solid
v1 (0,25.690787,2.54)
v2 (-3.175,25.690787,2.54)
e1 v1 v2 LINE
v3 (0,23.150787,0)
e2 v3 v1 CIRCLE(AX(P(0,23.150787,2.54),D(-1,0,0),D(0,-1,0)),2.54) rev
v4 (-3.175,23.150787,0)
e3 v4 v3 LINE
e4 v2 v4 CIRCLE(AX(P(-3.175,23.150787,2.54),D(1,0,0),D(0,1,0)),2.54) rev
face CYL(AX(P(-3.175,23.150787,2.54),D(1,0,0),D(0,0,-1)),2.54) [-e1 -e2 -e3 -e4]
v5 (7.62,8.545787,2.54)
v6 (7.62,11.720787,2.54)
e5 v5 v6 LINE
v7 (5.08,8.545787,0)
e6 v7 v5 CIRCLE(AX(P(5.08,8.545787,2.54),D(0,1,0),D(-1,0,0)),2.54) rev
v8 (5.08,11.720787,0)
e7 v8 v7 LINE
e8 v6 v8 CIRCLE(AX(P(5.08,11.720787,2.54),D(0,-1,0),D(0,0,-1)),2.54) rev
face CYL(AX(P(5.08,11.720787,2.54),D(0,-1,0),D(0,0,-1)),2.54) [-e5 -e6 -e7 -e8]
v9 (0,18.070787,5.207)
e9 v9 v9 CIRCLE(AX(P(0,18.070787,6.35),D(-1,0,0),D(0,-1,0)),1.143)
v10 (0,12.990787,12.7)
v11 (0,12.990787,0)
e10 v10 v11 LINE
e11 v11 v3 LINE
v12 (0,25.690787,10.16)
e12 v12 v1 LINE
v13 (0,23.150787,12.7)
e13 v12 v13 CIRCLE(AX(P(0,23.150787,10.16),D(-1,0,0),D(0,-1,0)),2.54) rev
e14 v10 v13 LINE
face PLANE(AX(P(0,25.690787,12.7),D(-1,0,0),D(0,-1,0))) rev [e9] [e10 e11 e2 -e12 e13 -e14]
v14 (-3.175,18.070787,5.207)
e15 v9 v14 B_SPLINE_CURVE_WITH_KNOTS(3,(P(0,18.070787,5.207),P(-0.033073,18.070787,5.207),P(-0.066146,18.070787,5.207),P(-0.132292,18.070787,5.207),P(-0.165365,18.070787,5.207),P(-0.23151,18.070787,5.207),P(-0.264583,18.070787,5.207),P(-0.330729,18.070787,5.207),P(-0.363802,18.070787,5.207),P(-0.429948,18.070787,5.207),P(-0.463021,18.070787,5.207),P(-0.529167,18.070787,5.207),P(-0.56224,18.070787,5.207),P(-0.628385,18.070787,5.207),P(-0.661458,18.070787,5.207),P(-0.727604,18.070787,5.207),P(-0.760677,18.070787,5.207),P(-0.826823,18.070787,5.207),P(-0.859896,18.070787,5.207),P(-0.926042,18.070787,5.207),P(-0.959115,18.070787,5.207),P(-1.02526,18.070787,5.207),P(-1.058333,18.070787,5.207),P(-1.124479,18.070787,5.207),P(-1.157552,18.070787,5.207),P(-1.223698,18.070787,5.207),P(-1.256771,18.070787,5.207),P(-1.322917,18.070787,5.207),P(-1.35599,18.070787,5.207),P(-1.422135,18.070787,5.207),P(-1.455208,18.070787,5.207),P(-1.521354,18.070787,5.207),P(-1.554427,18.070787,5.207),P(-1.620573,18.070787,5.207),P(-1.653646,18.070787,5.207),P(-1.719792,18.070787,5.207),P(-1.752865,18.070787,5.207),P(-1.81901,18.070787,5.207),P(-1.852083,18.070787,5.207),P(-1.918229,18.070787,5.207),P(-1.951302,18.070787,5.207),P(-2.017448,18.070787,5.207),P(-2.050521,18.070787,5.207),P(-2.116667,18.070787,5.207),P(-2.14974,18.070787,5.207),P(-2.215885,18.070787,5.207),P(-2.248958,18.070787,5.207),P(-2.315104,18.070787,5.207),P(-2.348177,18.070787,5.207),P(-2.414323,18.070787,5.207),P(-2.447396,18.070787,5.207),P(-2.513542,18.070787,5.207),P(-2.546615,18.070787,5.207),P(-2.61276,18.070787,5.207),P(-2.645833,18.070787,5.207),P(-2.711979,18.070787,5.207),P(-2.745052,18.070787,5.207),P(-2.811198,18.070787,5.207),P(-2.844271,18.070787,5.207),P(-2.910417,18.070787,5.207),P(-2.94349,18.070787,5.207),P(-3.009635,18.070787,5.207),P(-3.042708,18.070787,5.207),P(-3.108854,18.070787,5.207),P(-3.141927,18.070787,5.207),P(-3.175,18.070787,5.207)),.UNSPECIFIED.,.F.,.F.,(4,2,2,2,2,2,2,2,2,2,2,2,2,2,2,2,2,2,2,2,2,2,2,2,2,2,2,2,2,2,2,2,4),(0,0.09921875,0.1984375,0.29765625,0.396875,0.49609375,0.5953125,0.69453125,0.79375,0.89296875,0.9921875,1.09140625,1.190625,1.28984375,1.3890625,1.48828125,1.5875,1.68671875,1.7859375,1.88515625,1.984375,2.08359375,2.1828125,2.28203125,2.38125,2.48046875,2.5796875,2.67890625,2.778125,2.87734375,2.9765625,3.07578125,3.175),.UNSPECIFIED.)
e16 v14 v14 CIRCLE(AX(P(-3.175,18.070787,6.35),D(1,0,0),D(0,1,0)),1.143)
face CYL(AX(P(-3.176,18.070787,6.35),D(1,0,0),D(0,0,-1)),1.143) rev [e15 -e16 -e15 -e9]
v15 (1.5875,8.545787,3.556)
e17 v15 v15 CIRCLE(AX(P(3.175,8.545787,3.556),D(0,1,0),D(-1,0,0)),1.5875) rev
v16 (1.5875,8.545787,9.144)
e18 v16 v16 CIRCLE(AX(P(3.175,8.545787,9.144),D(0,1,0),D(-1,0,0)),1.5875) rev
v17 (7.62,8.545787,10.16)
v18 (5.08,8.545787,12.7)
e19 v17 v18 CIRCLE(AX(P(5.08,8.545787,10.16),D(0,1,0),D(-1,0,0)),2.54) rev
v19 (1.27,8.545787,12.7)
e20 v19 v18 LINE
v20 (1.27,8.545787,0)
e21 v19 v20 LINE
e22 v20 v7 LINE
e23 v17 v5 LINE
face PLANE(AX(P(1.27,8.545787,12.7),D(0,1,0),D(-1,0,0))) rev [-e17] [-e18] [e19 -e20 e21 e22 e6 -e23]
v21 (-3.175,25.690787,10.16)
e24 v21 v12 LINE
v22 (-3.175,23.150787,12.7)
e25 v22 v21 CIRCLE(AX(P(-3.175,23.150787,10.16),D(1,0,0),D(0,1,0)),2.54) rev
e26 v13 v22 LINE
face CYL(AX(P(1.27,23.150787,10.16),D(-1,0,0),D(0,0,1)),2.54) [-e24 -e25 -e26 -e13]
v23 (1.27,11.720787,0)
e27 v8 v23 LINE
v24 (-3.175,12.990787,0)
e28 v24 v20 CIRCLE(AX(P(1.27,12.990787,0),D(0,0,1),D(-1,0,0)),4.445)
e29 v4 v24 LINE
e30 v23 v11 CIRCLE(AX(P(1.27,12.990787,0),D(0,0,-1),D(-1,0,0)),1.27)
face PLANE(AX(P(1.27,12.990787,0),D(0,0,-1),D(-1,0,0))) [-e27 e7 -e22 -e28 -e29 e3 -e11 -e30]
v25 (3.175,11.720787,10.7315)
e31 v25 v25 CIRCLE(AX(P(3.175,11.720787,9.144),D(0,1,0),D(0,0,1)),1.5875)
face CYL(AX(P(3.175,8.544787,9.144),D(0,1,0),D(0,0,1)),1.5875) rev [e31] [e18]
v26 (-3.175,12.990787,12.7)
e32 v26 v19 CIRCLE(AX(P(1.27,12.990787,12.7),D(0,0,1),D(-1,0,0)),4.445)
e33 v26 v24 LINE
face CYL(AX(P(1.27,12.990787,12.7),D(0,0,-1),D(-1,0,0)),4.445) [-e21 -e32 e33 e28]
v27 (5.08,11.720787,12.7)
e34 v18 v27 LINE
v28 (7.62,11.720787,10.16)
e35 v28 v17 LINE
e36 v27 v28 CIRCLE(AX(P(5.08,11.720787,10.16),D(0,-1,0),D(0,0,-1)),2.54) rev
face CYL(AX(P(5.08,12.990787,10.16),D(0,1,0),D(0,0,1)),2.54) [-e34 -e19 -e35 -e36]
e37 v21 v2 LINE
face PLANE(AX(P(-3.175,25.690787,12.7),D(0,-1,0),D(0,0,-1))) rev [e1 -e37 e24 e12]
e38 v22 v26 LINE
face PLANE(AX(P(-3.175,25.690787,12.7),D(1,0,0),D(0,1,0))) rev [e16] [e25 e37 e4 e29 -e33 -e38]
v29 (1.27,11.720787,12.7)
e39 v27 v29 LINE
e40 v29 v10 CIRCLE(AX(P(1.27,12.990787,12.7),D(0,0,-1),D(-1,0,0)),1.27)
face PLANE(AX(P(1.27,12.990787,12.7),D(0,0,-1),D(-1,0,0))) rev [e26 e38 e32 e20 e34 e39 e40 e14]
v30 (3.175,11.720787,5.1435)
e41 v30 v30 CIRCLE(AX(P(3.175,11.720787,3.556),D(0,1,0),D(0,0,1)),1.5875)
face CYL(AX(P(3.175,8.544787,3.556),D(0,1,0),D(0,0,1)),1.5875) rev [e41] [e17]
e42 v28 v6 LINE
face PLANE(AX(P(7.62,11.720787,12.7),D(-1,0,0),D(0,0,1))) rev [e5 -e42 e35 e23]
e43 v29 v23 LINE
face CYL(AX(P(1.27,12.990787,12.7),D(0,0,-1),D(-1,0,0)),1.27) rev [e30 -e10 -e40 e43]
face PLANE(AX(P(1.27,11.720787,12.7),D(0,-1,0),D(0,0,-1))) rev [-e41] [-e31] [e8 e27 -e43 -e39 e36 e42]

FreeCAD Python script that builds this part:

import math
import FreeCAD as App
import Part
import Sketcher
Q = App.Units.Quantity


def edges_at(feature, points):
    """Names of the edges that pass closest to the given points."""
    edges = feature.Shape.Edges
    near = lambda p: min(range(len(edges)), key=lambda i: edges[i].distToShape(Part.Vertex(*p))[0])
    return sorted({f"Edge{near(p) + 1}" for p in points})

doc = App.newDocument("Part")
body = doc.addObject("PartDesign::Body", "Body")

sketch1 = body.newObject("Sketcher::SketchObject", "Sketch")
sketch1.AttachmentSupport = (doc.getObject("XY_Plane"), [""])
sketch1.MapMode = "FlatFace"
sketch1.addGeometry([
    Part.LineSegment(App.Vector(0, 13, 0), App.Vector(0, 25.7, 0)),
    Part.LineSegment(App.Vector(0, 25.7, 0), App.Vector(-3.2, 25.7, 0)),
    Part.LineSegment(App.Vector(-3.2, 25.7, 0), App.Vector(-3.2, 13, 0)),
    Part.ArcOfCircle(Part.Circle(App.Vector(1.3, 13, 0), App.Vector(0, 0, 1), 4.4), math.radians(-180), math.radians(-90)),
    Part.LineSegment(App.Vector(1.3, 8.5, 0), App.Vector(7.6, 8.5, 0)),
    Part.LineSegment(App.Vector(7.6, 8.5, 0), App.Vector(7.6, 11.7, 0)),
    Part.LineSegment(App.Vector(7.6, 11.7, 0), App.Vector(1.3, 11.7, 0)),
    Part.ArcOfCircle(Part.Circle(App.Vector(1.3, 13, 0), App.Vector(0, 0, 1), 1.3), math.radians(180), math.radians(270)),
], False)
sketch1.addConstraint([
    Sketcher.Constraint("Coincident", 0, 2, 1, 1),
    Sketcher.Constraint("Coincident", 1, 2, 2, 1),
    Sketcher.Constraint("Tangent", 2, 2, 3, 1),
    Sketcher.Constraint("Tangent", 3, 2, 4, 1),
    Sketcher.Constraint("Coincident", 4, 2, 5, 1),
    Sketcher.Constraint("Coincident", 5, 2, 6, 1),
    Sketcher.Constraint("Tangent", 6, 2, 7, 2),
    Sketcher.Constraint("Tangent", 7, 1, 0, 1),
    Sketcher.Constraint("Vertical", 0),
    Sketcher.Constraint("Horizontal", 1),
    Sketcher.Constraint("Vertical", 2),
    Sketcher.Constraint("Horizontal", 4),
    Sketcher.Constraint("Vertical", 5),
    Sketcher.Constraint("Horizontal", 6),
    Sketcher.Constraint("Coincident", 7, 3, 3, 3),
    Sketcher.Constraint("PointOnObject", 0, 2, -2),
    Sketcher.Constraint("Radius", 7, Q("0.05 in")),
    Sketcher.Constraint("DistanceY", 0, 1, 0, 2, Q("0.5 in")),
    Sketcher.Constraint("Radius", 3, Q("0.175 in")),
    Sketcher.Constraint("DistanceX", 4, 1, 4, 2, Q("0.25 in")),
    Sketcher.Constraint("DistanceY", -1, 1, 3, 3, Q("12.990787 mm")),
])
pad1 = body.newObject("PartDesign::Pad", "Pad")
pad1.Profile = sketch1
pad1.Length = Q("0.5 in")
doc.recompute()

fillet = body.newObject("PartDesign::Fillet", "Fillet")
fillet.Base = (pad1, edges_at(pad1, [
    (-1.587, 25.691, 0),
    (7.62, 10.133, 12.7),
    (-1.587, 25.691, 12.7),
    (7.62, 10.133, 0),
]))
fillet.Radius = Q("0.1 in")

sketch2 = body.newObject("Sketcher::SketchObject", "Sketch001")
sketch2.AttachmentSupport = (doc.getObject("YZ_Plane"), [""])
sketch2.MapMode = "FlatFace"
sketch2.addGeometry(Part.Circle(App.Vector(18.1, 6.3, 0), App.Vector(0, 0, 1), 1.1), False)
sketch2.addConstraint([
    Sketcher.Constraint("Diameter", 0, Q("0.09 in")),
    Sketcher.Constraint("DistanceY", -1, 1, 0, 3, Q("0.25 in")),
    Sketcher.Constraint("DistanceX", -1, 1, 0, 3, Q("18.070787 mm")),
])
pocket1 = body.newObject("PartDesign::Pocket", "Pocket")
pocket1.Profile = sketch2
pocket1.Length = Q("0.125 in")

sketch3 = body.newObject("Sketcher::SketchObject", "Sketch002")
sketch3.AttachmentSupport = (doc.getObject("XZ_Plane"), [""])
sketch3.MapMode = "FlatFace"
sketch3.AttachmentOffset = App.Placement(App.Vector(0, 0, -11.720787), App.Rotation())
sketch3.addGeometry([
    Part.ArcOfCircle(Part.Circle(App.Vector(3.2, 9.1, 0), App.Vector(0, 0, 1), 1.6), math.radians(90), math.radians(270)),
    Part.LineSegment(App.Vector(3.2, 10.7, 0), App.Vector(3.2, 7.6, 0)),
], False)
sketch3.addConstraint([
    Sketcher.Constraint("Coincident", 0, 1, 1, 1),
    Sketcher.Constraint("Coincident", 1, 2, 0, 2),
    Sketcher.Constraint("Vertical", 1),
    Sketcher.Constraint("Radius", 0, Q("0.0625 in")),
    Sketcher.Constraint("DistanceY", -1, 1, 0, 3, Q("0.36 in")),
    Sketcher.Constraint("DistanceX", -1, 1, 0, 3, Q("0.125 in")),
    Sketcher.Constraint("DistanceX", -1, 1, 0, 1, Q("0.125 in")),
])
pocket2 = body.newObject("PartDesign::Pocket", "Pocket001")
pocket2.Profile = sketch3
pocket2.Type = "UpToFirst"
pocket2.Reversed = True

sketch4 = body.newObject("Sketcher::SketchObject", "Sketch003")
sketch4.AttachmentSupport = (doc.getObject("XZ_Plane"), [""])
sketch4.MapMode = "FlatFace"
sketch4.AttachmentOffset = App.Placement(App.Vector(0, 0, -11.720787), App.Rotation())
sketch4.addGeometry([
    Part.LineSegment(App.Vector(3.2, 7.6, 0), App.Vector(3.2, 10.7, 0)),
    Part.ArcOfCircle(Part.Circle(App.Vector(3.2, 9.1, 0), App.Vector(0, 0, 1), 1.6), math.radians(0), math.radians(90)),
    Part.ArcOfCircle(Part.Circle(App.Vector(3.2, 9.1, 0), App.Vector(0, 0, 1), 1.6), math.radians(-90), math.radians(0)),
], False)
sketch4.addConstraint([
    Sketcher.Constraint("Coincident", 0, 2, 1, 2),
    Sketcher.Constraint("Tangent", 1, 1, 2, 2),
    Sketcher.Constraint("Coincident", 2, 1, 0, 1),
    Sketcher.Constraint("Vertical", 0),
    Sketcher.Constraint("Equal", 1, 2),
    Sketcher.Constraint("Horizontal", 2, 3, 1, 1),
    Sketcher.Constraint("Vertical", 2, 3, 0, 2),
    Sketcher.Constraint("Radius", 1, Q("0.0625 in")),
    Sketcher.Constraint("DistanceY", -1, 1, 1, 3, Q("0.36 in")),
    Sketcher.Constraint("DistanceX", -1, 1, 1, 3, Q("0.125 in")),
])
pocket3 = body.newObject("PartDesign::Pocket", "Pocket002")
pocket3.Profile = sketch4
pocket3.Type = "UpToFirst"
pocket3.Reversed = True

sketch5 = body.newObject("Sketcher::SketchObject", "Sketch004")
sketch5.AttachmentSupport = (doc.getObject("XZ_Plane"), [""])
sketch5.MapMode = "FlatFace"
sketch5.AttachmentOffset = App.Placement(App.Vector(0, 0, -11.720787), App.Rotation())
sketch5.addGeometry([
    Part.ArcOfCircle(Part.Circle(App.Vector(3.2, 9.1, 0), App.Vector(0, 0, 1), 1.6), math.radians(90), math.radians(270)),
    Part.LineSegment(App.Vector(3.2, 10.7, 0), App.Vector(3.2, 7.6, 0)),
], False)
sketch5.addConstraint([
    Sketcher.Constraint("Coincident", 0, 1, 1, 1),
    Sketcher.Constraint("Coincident", 1, 2, 0, 2),
    Sketcher.Constraint("Vertical", 1),
    Sketcher.Constraint("Radius", 0, Q("0.0625 in")),
    Sketcher.Constraint("DistanceY", -1, 1, 0, 3, Q("0.36 in")),
    Sketcher.Constraint("DistanceX", -1, 1, 0, 3, Q("0.125 in")),
    Sketcher.Constraint("DistanceX", -1, 1, 0, 1, Q("0.125 in")),
])
pocket4 = body.newObject("PartDesign::Pocket", "Pocket003")
pocket4.Profile = sketch5
pocket4.Length = Q("0.125 in")
pocket4.Reversed = True

sketch6 = body.newObject("Sketcher::SketchObject", "Sketch005")
sketch6.AttachmentSupport = (doc.getObject("XZ_Plane"), [""])
sketch6.MapMode = "FlatFace"
sketch6.AttachmentOffset = App.Placement(App.Vector(0, 0, -11.720787), App.Rotation())
sketch6.addGeometry([
    Part.LineSegment(App.Vector(3.2, 7.6, 0), App.Vector(3.2, 10.7, 0)),
    Part.ArcOfCircle(Part.Circle(App.Vector(3.2, 9.1, 0), App.Vector(0, 0, 1), 1.6), math.radians(0), math.radians(90)),
    Part.ArcOfCircle(Part.Circle(App.Vector(3.2, 9.1, 0), App.Vector(0, 0, 1), 1.6), math.radians(-90), math.radians(0)),
], False)
sketch6.addConstraint([
    Sketcher.Constraint("Coincident", 0, 2, 1, 2),
    Sketcher.Constraint("Tangent", 1, 1, 2, 2),
    Sketcher.Constraint("Coincident", 2, 1, 0, 1),
    Sketcher.Constraint("Vertical", 0),
    Sketcher.Constraint("Equal", 1, 2),
    Sketcher.Constraint("Horizontal", 2, 3, 1, 1),
    Sketcher.Constraint("Vertical", 2, 3, 0, 2),
    Sketcher.Constraint("Radius", 1, Q("0.0625 in")),
    Sketcher.Constraint("DistanceY", -1, 1, 1, 3, Q("0.36 in")),
    Sketcher.Constraint("DistanceX", -1, 1, 1, 3, Q("0.125 in")),
])
pocket5 = body.newObject("PartDesign::Pocket", "Pocket004")
pocket5.Profile = sketch6
pocket5.Length = Q("0.125 in")
pocket5.Reversed = True

sketch7 = body.newObject("Sketcher::SketchObject", "Sketch006")
sketch7.AttachmentSupport = (doc.getObject("XZ_Plane"), [""])
sketch7.MapMode = "FlatFace"
sketch7.AttachmentOffset = App.Placement(App.Vector(0, 0, -11.720787), App.Rotation())
sketch7.addGeometry([
    Part.ArcOfCircle(Part.Circle(App.Vector(3.2, 3.6, 0), App.Vector(0, 0, 1), 1.6), math.radians(90), math.radians(270)),
    Part.LineSegment(App.Vector(3.2, 5.1, 0), App.Vector(3.2, 2, 0)),
], False)
sketch7.addConstraint([
    Sketcher.Constraint("Coincident", 0, 1, 1, 1),
    Sketcher.Constraint("Coincident", 1, 2, 0, 2),
    Sketcher.Constraint("Vertical", 1),
    Sketcher.Constraint("Radius", 0, Q("0.0625 in")),
    Sketcher.Constraint("DistanceY", -1, 1, 0, 3, Q("0.14 in")),
    Sketcher.Constraint("DistanceX", -1, 1, 0, 3, Q("0.125 in")),
    Sketcher.Constraint("DistanceX", -1, 1, 0, 1, Q("0.125 in")),
])
pocket6 = body.newObject("PartDesign::Pocket", "Pocket005")
pocket6.Profile = sketch7
pocket6.Type = "UpToFirst"
pocket6.Reversed = True

sketch8 = body.newObject("Sketcher::SketchObject", "Sketch007")
sketch8.AttachmentSupport = (doc.getObject("XZ_Plane"), [""])
sketch8.MapMode = "FlatFace"
sketch8.AttachmentOffset = App.Placement(App.Vector(0, 0, -11.720787), App.Rotation())
sketch8.addGeometry([
    Part.LineSegment(App.Vector(3.2, 2, 0), App.Vector(3.2, 5.1, 0)),
    Part.ArcOfCircle(Part.Circle(App.Vector(3.2, 3.6, 0), App.Vector(0, 0, 1), 1.6), math.radians(0), math.radians(90)),
    Part.ArcOfCircle(Part.Circle(App.Vector(3.2, 3.6, 0), App.Vector(0, 0, 1), 1.6), math.radians(-90), math.radians(0)),
], False)
sketch8.addConstraint([
    Sketcher.Constraint("Coincident", 0, 2, 1, 2),
    Sketcher.Constraint("Tangent", 1, 1, 2, 2),
    Sketcher.Constraint("Coincident", 2, 1, 0, 1),
    Sketcher.Constraint("Vertical", 0),
    Sketcher.Constraint("Equal", 1, 2),
    Sketcher.Constraint("Horizontal", 2, 3, 1, 1),
    Sketcher.Constraint("Vertical", 2, 3, 0, 2),
    Sketcher.Constraint("Radius", 1, Q("0.0625 in")),
    Sketcher.Constraint("DistanceY", -1, 1, 1, 3, Q("0.14 in")),
    Sketcher.Constraint("DistanceX", -1, 1, 1, 3, Q("0.125 in")),
])
pocket7 = body.newObject("PartDesign::Pocket", "Pocket006")
pocket7.Profile = sketch8
pocket7.Type = "UpToFirst"
pocket7.Reversed = True

sketch9 = body.newObject("Sketcher::SketchObject", "Sketch008")
sketch9.AttachmentSupport = (doc.getObject("XZ_Plane"), [""])
sketch9.MapMode = "FlatFace"
sketch9.AttachmentOffset = App.Placement(App.Vector(0, 0, -11.720787), App.Rotation())
sketch9.addGeometry([
    Part.ArcOfCircle(Part.Circle(App.Vector(3.2, 3.6, 0), App.Vector(0, 0, 1), 1.6), math.radians(90), math.radians(270)),
    Part.LineSegment(App.Vector(3.2, 5.1, 0), App.Vector(3.2, 2, 0)),
], False)
sketch9.addConstraint([
    Sketcher.Constraint("Coincident", 0, 1, 1, 1),
    Sketcher.Constraint("Coincident", 1, 2, 0, 2),
    Sketcher.Constraint("Vertical", 1),
    Sketcher.Constraint("Radius", 0, Q("0.0625 in")),
    Sketcher.Constraint("DistanceY", -1, 1, 0, 3, Q("0.14 in")),
    Sketcher.Constraint("DistanceX", -1, 1, 0, 3, Q("0.125 in")),
    Sketcher.Constraint("DistanceX", -1, 1, 0, 1, Q("0.125 in")),
])
pocket8 = body.newObject("PartDesign::Pocket", "Pocket007")
pocket8.Profile = sketch9
pocket8.Length = Q("0.125 in")
pocket8.Reversed = True

sketch10 = body.newObject("Sketcher::SketchObject", "Sketch009")
sketch10.AttachmentSupport = (doc.getObject("XZ_Plane"), [""])
sketch10.MapMode = "FlatFace"
sketch10.AttachmentOffset = App.Placement(App.Vector(0, 0, -11.720787), App.Rotation())
sketch10.addGeometry([
    Part.LineSegment(App.Vector(3.2, 2, 0), App.Vector(3.2, 5.1, 0)),
    Part.ArcOfCircle(Part.Circle(App.Vector(3.2, 3.6, 0), App.Vector(0, 0, 1), 1.6), math.radians(0), math.radians(90)),
    Part.ArcOfCircle(Part.Circle(App.Vector(3.2, 3.6, 0), App.Vector(0, 0, 1), 1.6), math.radians(-90), math.radians(0)),
], False)
sketch10.addConstraint([
    Sketcher.Constraint("Coincident", 0, 2, 1, 2),
    Sketcher.Constraint("Tangent", 1, 1, 2, 2),
    Sketcher.Constraint("Coincident", 2, 1, 0, 1),
    Sketcher.Constraint("Vertical", 0),
    Sketcher.Constraint("Equal", 1, 2),
    Sketcher.Constraint("Horizontal", 2, 3, 1, 1),
    Sketcher.Constraint("Vertical", 2, 3, 0, 2),
    Sketcher.Constraint("Radius", 1, Q("0.0625 in")),
    Sketcher.Constraint("DistanceY", -1, 1, 1, 3, Q("0.14 in")),
    Sketcher.Constraint("DistanceX", -1, 1, 1, 3, Q("0.125 in")),
])
pocket9 = body.newObject("PartDesign::Pocket", "Pocket008")
pocket9.Profile = sketch10
pocket9.Length = Q("0.125 in")
pocket9.Reversed = True

doc.recompute()
